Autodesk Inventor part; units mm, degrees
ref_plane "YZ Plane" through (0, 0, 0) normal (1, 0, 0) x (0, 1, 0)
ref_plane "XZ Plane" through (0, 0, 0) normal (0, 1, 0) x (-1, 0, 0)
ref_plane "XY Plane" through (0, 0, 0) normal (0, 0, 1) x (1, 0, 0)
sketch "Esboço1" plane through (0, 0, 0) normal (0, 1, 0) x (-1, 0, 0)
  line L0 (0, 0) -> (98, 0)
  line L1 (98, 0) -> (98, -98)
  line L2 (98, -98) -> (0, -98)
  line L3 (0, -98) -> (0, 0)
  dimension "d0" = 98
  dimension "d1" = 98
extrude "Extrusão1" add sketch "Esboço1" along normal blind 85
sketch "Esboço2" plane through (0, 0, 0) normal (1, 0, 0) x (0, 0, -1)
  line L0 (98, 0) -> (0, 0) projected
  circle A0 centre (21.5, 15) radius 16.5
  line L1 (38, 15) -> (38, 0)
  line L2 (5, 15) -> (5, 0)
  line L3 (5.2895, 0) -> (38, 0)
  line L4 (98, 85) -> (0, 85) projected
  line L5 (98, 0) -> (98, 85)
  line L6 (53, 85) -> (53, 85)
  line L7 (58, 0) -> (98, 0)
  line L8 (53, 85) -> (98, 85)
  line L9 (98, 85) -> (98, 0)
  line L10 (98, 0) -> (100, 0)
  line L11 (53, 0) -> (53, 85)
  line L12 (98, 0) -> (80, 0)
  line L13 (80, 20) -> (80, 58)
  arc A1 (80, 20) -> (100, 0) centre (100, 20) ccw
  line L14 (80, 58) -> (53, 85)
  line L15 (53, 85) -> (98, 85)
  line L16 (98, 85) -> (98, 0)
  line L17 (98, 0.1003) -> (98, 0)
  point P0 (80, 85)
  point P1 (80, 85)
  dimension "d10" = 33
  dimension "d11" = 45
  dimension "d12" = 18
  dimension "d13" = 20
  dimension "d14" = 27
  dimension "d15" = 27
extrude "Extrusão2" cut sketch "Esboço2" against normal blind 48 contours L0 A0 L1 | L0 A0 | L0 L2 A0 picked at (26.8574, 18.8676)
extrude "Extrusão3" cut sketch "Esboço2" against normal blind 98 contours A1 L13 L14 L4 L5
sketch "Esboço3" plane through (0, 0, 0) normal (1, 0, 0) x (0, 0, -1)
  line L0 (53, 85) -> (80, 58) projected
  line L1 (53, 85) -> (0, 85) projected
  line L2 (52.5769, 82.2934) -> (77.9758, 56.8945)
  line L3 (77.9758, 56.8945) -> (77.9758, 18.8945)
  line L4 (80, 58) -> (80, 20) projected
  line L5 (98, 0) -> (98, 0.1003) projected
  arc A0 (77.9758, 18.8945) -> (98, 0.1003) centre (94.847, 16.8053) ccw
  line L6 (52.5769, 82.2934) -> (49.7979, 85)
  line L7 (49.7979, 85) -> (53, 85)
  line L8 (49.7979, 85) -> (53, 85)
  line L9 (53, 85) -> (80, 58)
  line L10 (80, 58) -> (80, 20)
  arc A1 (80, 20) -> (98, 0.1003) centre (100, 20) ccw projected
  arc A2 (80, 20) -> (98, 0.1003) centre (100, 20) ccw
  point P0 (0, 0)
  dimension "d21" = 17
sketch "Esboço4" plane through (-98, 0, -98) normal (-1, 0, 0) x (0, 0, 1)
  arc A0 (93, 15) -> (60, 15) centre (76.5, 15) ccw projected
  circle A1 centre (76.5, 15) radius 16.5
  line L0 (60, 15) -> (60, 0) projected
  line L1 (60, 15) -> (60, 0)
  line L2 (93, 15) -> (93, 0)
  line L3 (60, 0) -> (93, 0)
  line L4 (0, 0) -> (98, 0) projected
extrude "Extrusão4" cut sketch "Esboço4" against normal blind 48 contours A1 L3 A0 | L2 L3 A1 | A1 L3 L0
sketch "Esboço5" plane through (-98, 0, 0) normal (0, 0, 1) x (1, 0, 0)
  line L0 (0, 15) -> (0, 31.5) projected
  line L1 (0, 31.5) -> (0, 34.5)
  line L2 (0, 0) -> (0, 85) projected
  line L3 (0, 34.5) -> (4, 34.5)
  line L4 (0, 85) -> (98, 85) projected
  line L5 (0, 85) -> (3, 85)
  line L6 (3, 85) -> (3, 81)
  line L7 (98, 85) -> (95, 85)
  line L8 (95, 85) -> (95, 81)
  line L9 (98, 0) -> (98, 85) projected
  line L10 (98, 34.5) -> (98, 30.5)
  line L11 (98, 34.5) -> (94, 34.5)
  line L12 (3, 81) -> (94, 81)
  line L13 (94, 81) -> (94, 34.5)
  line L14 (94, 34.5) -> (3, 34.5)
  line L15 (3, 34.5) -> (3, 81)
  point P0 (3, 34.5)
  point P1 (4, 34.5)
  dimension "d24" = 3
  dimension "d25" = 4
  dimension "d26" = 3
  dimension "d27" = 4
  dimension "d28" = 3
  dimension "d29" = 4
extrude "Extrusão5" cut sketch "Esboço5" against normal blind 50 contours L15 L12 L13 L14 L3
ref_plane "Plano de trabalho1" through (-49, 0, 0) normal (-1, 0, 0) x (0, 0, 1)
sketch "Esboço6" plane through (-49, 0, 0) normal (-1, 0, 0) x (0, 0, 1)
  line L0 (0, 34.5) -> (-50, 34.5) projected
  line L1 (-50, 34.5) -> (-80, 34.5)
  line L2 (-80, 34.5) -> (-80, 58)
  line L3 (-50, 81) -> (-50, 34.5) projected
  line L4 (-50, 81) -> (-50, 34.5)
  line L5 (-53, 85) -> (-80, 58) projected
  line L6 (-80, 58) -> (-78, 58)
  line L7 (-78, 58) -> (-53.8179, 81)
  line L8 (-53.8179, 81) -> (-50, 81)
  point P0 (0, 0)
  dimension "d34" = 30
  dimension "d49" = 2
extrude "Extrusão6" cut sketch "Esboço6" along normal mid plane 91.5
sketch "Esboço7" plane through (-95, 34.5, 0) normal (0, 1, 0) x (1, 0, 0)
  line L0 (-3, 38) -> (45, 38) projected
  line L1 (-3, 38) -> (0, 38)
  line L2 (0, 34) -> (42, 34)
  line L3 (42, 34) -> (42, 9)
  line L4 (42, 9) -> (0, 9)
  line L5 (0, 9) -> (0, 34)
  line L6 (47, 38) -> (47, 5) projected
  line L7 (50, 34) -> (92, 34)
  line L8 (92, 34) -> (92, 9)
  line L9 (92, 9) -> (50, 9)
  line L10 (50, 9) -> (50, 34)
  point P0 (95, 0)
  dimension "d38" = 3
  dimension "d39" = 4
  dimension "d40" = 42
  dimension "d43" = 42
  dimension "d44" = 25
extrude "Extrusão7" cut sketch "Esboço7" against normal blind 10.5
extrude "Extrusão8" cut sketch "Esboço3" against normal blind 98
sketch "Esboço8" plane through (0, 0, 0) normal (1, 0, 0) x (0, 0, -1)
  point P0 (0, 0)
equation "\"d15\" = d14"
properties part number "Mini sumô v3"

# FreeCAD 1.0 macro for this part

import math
import FreeCAD as App
import Part
import Sketcher
Q = App.Units.Quantity


def add_polygon(sketch, points):
    """Adds a closed chain of lines whose ends are joined by coincident constraints."""
    first, n = sketch.GeometryCount, len(points)
    for a, b in zip(points, points[1:] + points[:1]):
        sketch.addGeometry(Part.LineSegment(App.Vector(*a, 0), App.Vector(*b, 0)), False)
    for i in range(n):
        sketch.addConstraint(Sketcher.Constraint("Coincident", first + i, 2, first + (i + 1) % n, 1))

doc = App.newDocument("Part")
body = doc.addObject("PartDesign::Body", "Body")
body.AllowCompound = True

sketch1 = doc.addObject("Sketcher::SketchObject", "Sketch")
body.addObject(sketch1)
sketch1.AttachmentSupport = (doc.XZ_Plane, [""])
sketch1.MapMode = "FlatFace"
add_polygon(sketch1, [(-98, 0), (0, 0), (0, -98), (-98, -98)])
sketch1.addConstraint([
    Sketcher.Constraint("Horizontal", 0),
    Sketcher.Constraint("Vertical", 1),
    Sketcher.Constraint("Horizontal", 2),
    Sketcher.Constraint("Vertical", 3),
    Sketcher.Constraint("Coincident", 0, 2, -1, 1),
    Sketcher.Constraint("Equal", 2, 1),
    Sketcher.Constraint("DistanceX", 0, 1, 0, 2, Q("98 mm")),
])
pad1 = doc.addObject("PartDesign::Pad", "Pad")
body.addObject(pad1)
pad1.Profile = sketch1
pad1.Length = 85
pad1.Reversed = True

sketch2 = doc.addObject("Sketcher::SketchObject", "Sketch001")
body.addObject(sketch2)
sketch2.AttachmentSupport = (doc.YZ_Plane, [""])
sketch2.MapMode = "FlatFace"
sketch2.addGeometry([
    Part.LineSegment(App.Vector(0, -38, 0), App.Vector(15, -38, 0)),
    Part.ArcOfCircle(Part.Circle(App.Vector(15, -22, 0), App.Vector(0, 0, 1), 16), math.radians(-90), math.radians(90)),
    Part.LineSegment(App.Vector(15, -5, 0), App.Vector(0, -5, 0)),
    Part.LineSegment(App.Vector(0, -5, 0), App.Vector(0, -38, 0)),
], False)
sketch2.addConstraint([
    Sketcher.Constraint("Tangent", 0, 2, 1, 1),
    Sketcher.Constraint("Tangent", 1, 2, 2, 1),
    Sketcher.Constraint("Coincident", 2, 2, 3, 1),
    Sketcher.Constraint("Coincident", 3, 2, 0, 1),
    Sketcher.Constraint("Horizontal", 0),
    Sketcher.Constraint("Horizontal", 2),
    Sketcher.Constraint("Vertical", 3),
    Sketcher.Constraint("PointOnObject", 2, 2, -2),
    Sketcher.Constraint("Radius", 1, Q("16.5 mm")),
    Sketcher.Constraint("DistanceX", 0, 1, 0, 2, Q("15 mm")),
    Sketcher.Constraint("DistanceY", 0, 2, -1, 1, Q("38 mm")),
])
pocket1 = doc.addObject("PartDesign::Pocket", "Pocket")
body.addObject(pocket1)
pocket1.Profile = sketch2
pocket1.Length = 48

sketch3 = doc.addObject("Sketcher::SketchObject", "Sketch002")
body.addObject(sketch3)
sketch3.AttachmentSupport = (doc.YZ_Plane, [""])
sketch3.MapMode = "FlatFace"
sketch3.addGeometry([
    Part.ArcOfCircle(Part.Circle(App.Vector(20, -100, 0), App.Vector(0, 0, 1), 20), math.radians(90), math.radians(174)),
    Part.LineSegment(App.Vector(0, -98, 0), App.Vector(85, -98, 0)),
    Part.LineSegment(App.Vector(85, -98, 0), App.Vector(85, -53, 0)),
    Part.LineSegment(App.Vector(85, -53, 0), App.Vector(58, -80, 0)),
    Part.LineSegment(App.Vector(58, -80, 0), App.Vector(20, -80, 0)),
], False)
sketch3.addConstraint([
    Sketcher.Constraint("Coincident", 0, 2, 1, 1),
    Sketcher.Constraint("Coincident", 1, 2, 2, 1),
    Sketcher.Constraint("Coincident", 2, 2, 3, 1),
    Sketcher.Constraint("Coincident", 3, 2, 4, 1),
    Sketcher.Constraint("Tangent", 4, 2, 0, 1),
    Sketcher.Constraint("Horizontal", 1),
    Sketcher.Constraint("Vertical", 2),
    Sketcher.Constraint("Horizontal", 4),
    Sketcher.Constraint("Radius", 0, Q("20 mm")),
    Sketcher.Constraint("DistanceY", 2, 1, 2, 2, Q("45 mm")),
    Sketcher.Constraint("DistanceX", -1, 1, 0, 3, Q("20 mm")),
    Sketcher.Constraint("DistanceX", 3, 2, 1, 2, Q("27 mm")),
    Sketcher.Constraint("DistanceY", 1, 2, 3, 2, Q("18 mm")),
    Sketcher.Constraint("DistanceX", 4, 2, 4, 1, Q("38 mm")),
    Sketcher.Constraint("DistanceY", 0, 3, -1, 1, Q("100 mm")),
])
pocket2 = doc.addObject("PartDesign::Pocket", "Pocket001")
body.addObject(pocket2)
pocket2.Profile = sketch3
pocket2.Length = 98

sketch4 = doc.addObject("Sketcher::SketchObject", "Sketch003")
body.addObject(sketch4)
sketch4.AttachmentSupport = (doc.YZ_Plane, [""])
sketch4.MapMode = "FlatFace"
sketch4.AttachmentOffset = App.Placement(App.Vector(0, 0, -98), App.Rotation())
sketch4.addGeometry([
    Part.LineSegment(App.Vector(0, -5, 0), App.Vector(15, -5, 0)),
    Part.ArcOfCircle(Part.Circle(App.Vector(15, -22, 0), App.Vector(0, 0, 1), 16), math.radians(-90), math.radians(90)),
    Part.LineSegment(App.Vector(15, -38, 0), App.Vector(0, -38, 0)),
    Part.LineSegment(App.Vector(0, -38, 0), App.Vector(0, -5, 0)),
], False)
sketch4.addConstraint([
    Sketcher.Constraint("Tangent", 0, 2, 1, 2),
    Sketcher.Constraint("Tangent", 1, 1, 2, 1),
    Sketcher.Constraint("Coincident", 2, 2, 3, 1),
    Sketcher.Constraint("Coincident", 3, 2, 0, 1),
    Sketcher.Constraint("Horizontal", 0),
    Sketcher.Constraint("Horizontal", 2),
    Sketcher.Constraint("Vertical", 3),
    Sketcher.Constraint("PointOnObject", 2, 2, -2),
    Sketcher.Constraint("Radius", 1, Q("16.5 mm")),
    Sketcher.Constraint("DistanceX", 0, 1, 0, 2, Q("15 mm")),
    Sketcher.Constraint("DistanceY", 0, 2, -1, 1, Q("5 mm")),
])
pocket3 = doc.addObject("PartDesign::Pocket", "Pocket002")
body.addObject(pocket3)
pocket3.Profile = sketch4
pocket3.Length = 48
pocket3.Reversed = True

sketch5 = doc.addObject("Sketcher::SketchObject", "Sketch004")
body.addObject(sketch5)
sketch5.AttachmentSupport = (doc.XY_Plane, [""])
sketch5.MapMode = "FlatFace"
add_polygon(sketch5, [(-95, 81), (-95, 34), (-4, 34), (-4, 81)])
sketch5.addConstraint([
    Sketcher.Constraint("Vertical", 0),
    Sketcher.Constraint("Horizontal", 1),
    Sketcher.Constraint("Vertical", 2),
    Sketcher.Constraint("Horizontal", 3),
    Sketcher.Constraint("DistanceX", 1, 2, -1, 1, Q("4 mm")),
    Sketcher.Constraint("DistanceX", 1, 1, 1, 2, Q("91 mm")),
    Sketcher.Constraint("DistanceY", 0, 2, 0, 1, Q("46.5 mm")),
    Sketcher.Constraint("DistanceY", -1, 1, 2, 2, Q("81 mm")),
])
pocket4 = doc.addObject("PartDesign::Pocket", "Pocket003")
body.addObject(pocket4)
pocket4.Profile = sketch5
pocket4.Length = 50

sketch6 = doc.addObject("Sketcher::SketchObject", "Sketch005")
body.addObject(sketch6)
sketch6.AttachmentSupport = (doc.YZ_Plane, [""])
sketch6.MapMode = "FlatFace"
sketch6.AttachmentOffset = App.Placement(App.Vector(0, 0, -49), App.Rotation())
add_polygon(sketch6, [(34.5, -80), (34.5, -50), (81, -50), (81, -53.8), (58, -78), (58, -80)])
sketch6.addConstraint([
    Sketcher.Constraint("Vertical", 0),
    Sketcher.Constraint("Horizontal", 1),
    Sketcher.Constraint("Vertical", 2),
    Sketcher.Constraint("Vertical", 4),
    Sketcher.Constraint("Horizontal", 5),
    Sketcher.Constraint("DistanceY", 0, 1, 0, 2, Q("30 mm")),
    Sketcher.Constraint("DistanceY", 4, 2, 4, 1, Q("2 mm")),
    Sketcher.Constraint("DistanceX", 1, 1, 1, 2, Q("46.5 mm")),
    Sketcher.Constraint("DistanceX", 5, 2, 5, 1, Q("23.5 mm")),
    Sketcher.Constraint("DistanceY", 0, 2, -1, 1, Q("50 mm")),
    Sketcher.Constraint("DistanceX", -1, 1, 1, 2, Q("81 mm")),
    Sketcher.Constraint("DistanceY", 2, 2, 2, 1, Q("3.818 mm")),
])
pocket5 = doc.addObject("PartDesign::Pocket", "Pocket004")
body.addObject(pocket5)
pocket5.Profile = sketch6
pocket5.Length = 91.5
pocket5.Midplane = True

sketch7 = doc.addObject("Sketcher::SketchObject", "Sketch006")
body.addObject(sketch7)
sketch7.AttachmentSupport = (doc.XZ_Plane, [""])
sketch7.MapMode = "FlatFace"
sketch7.AttachmentOffset = App.Placement(App.Vector(0, 0, -34.5), App.Rotation())
add_polygon(sketch7, [(-53, -34), (-95, -34), (-95, -9), (-53, -9)])
add_polygon(sketch7, [(-3, -34), (-45, -34), (-45, -9), (-3, -9)])
sketch7.addConstraint([
    Sketcher.Constraint("Horizontal", 0),
    Sketcher.Constraint("Vertical", 1),
    Sketcher.Constraint("Horizontal", 2),
    Sketcher.Constraint("Vertical", 3),
    Sketcher.Constraint("Horizontal", 4),
    Sketcher.Constraint("Vertical", 5),
    Sketcher.Constraint("Horizontal", 6),
    Sketcher.Constraint("Vertical", 7),
    Sketcher.Constraint("Horizontal", 3, 2, 4, 2),
    Sketcher.Constraint("Horizontal", 2, 2, 5, 2),
    Sketcher.Constraint("Equal", 2, 4),
    Sketcher.Constraint("DistanceX", 0, 2, 0, 1, Q("42 mm")),
    Sketcher.Constraint("DistanceY", 1, 1, 1, 2, Q("25 mm")),
    Sketcher.Constraint("DistanceX", 6, 2, -1, 1, Q("3 mm")),
    Sketcher.Constraint("DistanceX", 0, 2, -1, 1, Q("95 mm")),
    Sketcher.Constraint("DistanceY", 0, 2, -1, 1, Q("34 mm")),
])
pocket6 = doc.addObject("PartDesign::Pocket", "Pocket005")
body.addObject(pocket6)
pocket6.Profile = sketch7
pocket6.Length = 10.5
pocket6.Reversed = True

sketch8 = doc.addObject("Sketcher::SketchObject", "Sketch007")
body.addObject(sketch8)
sketch8.AttachmentSupport = (doc.YZ_Plane, [""])
sketch8.MapMode = "FlatFace"
sketch8.addGeometry([
    Part.LineSegment(App.Vector(58, -80, 0), App.Vector(85, -53, 0)),
    Part.LineSegment(App.Vector(85, -53, 0), App.Vector(85, -49.8, 0)),
    Part.LineSegment(App.Vector(85, -49.8, 0), App.Vector(82.3, -52.6, 0)),
    Part.LineSegment(App.Vector(82.3, -52.6, 0), App.Vector(56.9, -78, 0)),
    Part.LineSegment(App.Vector(56.9, -78, 0), App.Vector(18.9, -78, 0)),
    Part.ArcOfCircle(Part.Circle(App.Vector(16.8, -94.8, 0), App.Vector(0, 0, 1), 17), math.radians(83), math.radians(191)),
    Part.ArcOfCircle(Part.Circle(App.Vector(20, -100, 0), App.Vector(0, 0, 1), 20), math.radians(90), math.radians(174)),
    Part.LineSegment(App.Vector(20, -80, 0), App.Vector(58, -80, 0)),
], False)
sketch8.addConstraint([
    Sketcher.Constraint("Coincident", 0, 2, 1, 1),
    Sketcher.Constraint("Coincident", 1, 2, 2, 1),
    Sketcher.Constraint("Coincident", 2, 2, 3, 1),
    Sketcher.Constraint("Coincident", 3, 2, 4, 1),
    Sketcher.Constraint("Coincident", 4, 2, 5, 1),
    Sketcher.Constraint("Coincident", 5, 2, 6, 2),
    Sketcher.Constraint("Tangent", 6, 1, 7, 1),
    Sketcher.Constraint("Coincident", 7, 2, 0, 1),
    Sketcher.Constraint("Vertical", 1),
    Sketcher.Constraint("Horizontal", 4),
    Sketcher.Constraint("Horizontal", 7),
    Sketcher.Constraint("Parallel", 0, 3),
    Sketcher.Constraint("Equal", 4, 7),
    Sketcher.Constraint("Radius", 5, Q("17 mm")),
    Sketcher.Constraint("Radius", 6, Q("20 mm")),
    Sketcher.Constraint("DistanceX", 4, 2, 4, 1, Q("38 mm")),
    Sketcher.Constraint("Angle", 0, Q("45 deg")),
    Sketcher.Constraint("DistanceX", -1, 1, 6, 3, Q("20 mm")),
    Sketcher.Constraint("DistanceY", 6, 3, -1, 1, Q("100 mm")),
    Sketcher.Constraint("DistanceX", -1, 1, 0, 2, Q("85 mm")),
    Sketcher.Constraint("DistanceY", 5, 2, -1, 1, Q("98 mm")),
    Sketcher.Constraint("DistanceY", 1, 1, 1, 2, Q("3.202 mm")),
    Sketcher.Constraint("DistanceY", 5, 3, 2, 2, Q("42.27 mm")),
    Sketcher.Constraint("DistanceY", 5, 3, -1, 1, Q("94.847 mm")),
    Sketcher.Constraint("DistanceX", 5, 3, 2, 2, Q("65.488 mm")),
])
pocket7 = doc.addObject("PartDesign::Pocket", "Pocket006")
body.addObject(pocket7)
pocket7.Profile = sketch8
pocket7.Length = 98

doc.recompute()
